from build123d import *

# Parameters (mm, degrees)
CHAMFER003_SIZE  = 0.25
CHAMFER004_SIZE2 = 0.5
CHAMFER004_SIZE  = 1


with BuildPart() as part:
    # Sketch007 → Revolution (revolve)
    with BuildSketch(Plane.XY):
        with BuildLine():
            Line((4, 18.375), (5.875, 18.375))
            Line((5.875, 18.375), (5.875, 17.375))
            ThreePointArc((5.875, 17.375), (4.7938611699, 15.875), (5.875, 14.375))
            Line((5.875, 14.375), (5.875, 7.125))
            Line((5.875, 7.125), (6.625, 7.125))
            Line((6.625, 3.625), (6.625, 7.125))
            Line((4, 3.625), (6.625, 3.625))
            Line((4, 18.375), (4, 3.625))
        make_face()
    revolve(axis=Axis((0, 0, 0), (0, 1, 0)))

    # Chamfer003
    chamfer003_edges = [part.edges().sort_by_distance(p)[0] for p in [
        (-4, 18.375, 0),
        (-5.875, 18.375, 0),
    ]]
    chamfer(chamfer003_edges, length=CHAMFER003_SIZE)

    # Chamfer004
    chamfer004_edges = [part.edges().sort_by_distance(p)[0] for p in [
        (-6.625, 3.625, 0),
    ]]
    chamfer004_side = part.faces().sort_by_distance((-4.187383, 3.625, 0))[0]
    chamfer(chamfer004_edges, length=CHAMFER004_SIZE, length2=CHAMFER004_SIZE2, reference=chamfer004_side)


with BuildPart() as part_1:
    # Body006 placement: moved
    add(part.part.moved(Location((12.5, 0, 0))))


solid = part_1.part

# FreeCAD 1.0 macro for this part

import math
import FreeCAD as App
import Part
import Sketcher

V = App.Vector
Q = App.Units.Quantity


def edges_at(feature, points):
    """Names of the edges that pass closest to the given points."""
    edges = feature.Shape.Edges
    near = lambda p: min(range(len(edges)), key=lambda i: edges[i].distToShape(Part.Vertex(*p))[0])
    return sorted({f"Edge{near(p) + 1}" for p in points})

doc = App.newDocument("Part")
body = doc.addObject("PartDesign::Body", "Body")

sketch1 = doc.addObject("Sketcher::SketchObject", "Sketch")
body.addObject(sketch1)
sketch1.AttachmentSupport = (doc.XY_Plane, [""])
sketch1.MapMode = "FlatFace"
sketch1.addGeometry(Part.LineSegment(V(5.9, 18.4, 0), V(4, 18.4, 0)), False)
sketch1.addGeometry(Part.LineSegment(V(4, 18.4, 0), V(4, 3.6, 0)), False)
sketch1.addGeometry(Part.LineSegment(V(4, 3.6, 0), V(6.6, 3.6, 0)), False)
sketch1.addGeometry(Part.LineSegment(V(6.6, 3.6, 0), V(6.6, 7.1, 0)), False)
sketch1.addGeometry(Part.LineSegment(V(6.6, 7.1, 0), V(5.9, 7.1, 0)), False)
sketch1.addGeometry(Part.LineSegment(V(5.9, 7.1, 0), V(5.9, 14.4, 0)), False)
sketch1.addGeometry(Part.ArcOfCircle(Part.Circle(V(6.4, 15.9, 0), V(0, 0, 1), 1.6), math.radians(108), math.radians(252)), False)
sketch1.addGeometry(Part.LineSegment(V(5.9, 17.4, 0), V(5.9, 18.4, 0)), False)
sketch1.addConstraint(Sketcher.Constraint("Coincident", 0, 2, 1, 1))
sketch1.addConstraint(Sketcher.Constraint("Coincident", 1, 2, 2, 1))
sketch1.addConstraint(Sketcher.Constraint("Coincident", 2, 2, 3, 1))
sketch1.addConstraint(Sketcher.Constraint("Coincident", 3, 2, 4, 1))
sketch1.addConstraint(Sketcher.Constraint("Coincident", 4, 2, 5, 1))
sketch1.addConstraint(Sketcher.Constraint("Coincident", 5, 2, 6, 2))
sketch1.addConstraint(Sketcher.Constraint("Coincident", 6, 1, 7, 1))
sketch1.addConstraint(Sketcher.Constraint("Coincident", 7, 2, 0, 1))
sketch1.addConstraint(Sketcher.Constraint("Horizontal", 0))
sketch1.addConstraint(Sketcher.Constraint("Vertical", 1))
sketch1.addConstraint(Sketcher.Constraint("Horizontal", 2))
sketch1.addConstraint(Sketcher.Constraint("Vertical", 3))
sketch1.addConstraint(Sketcher.Constraint("Horizontal", 4))
sketch1.addConstraint(Sketcher.Constraint("Vertical", 5))
sketch1.addConstraint(Sketcher.Constraint("Vertical", 7))
sketch1.addConstraint(Sketcher.Constraint("Vertical", 5, 2, 6, 1))
sketch1.addConstraint(Sketcher.Constraint("DistanceY", 7, 1, 7, 2, Q("1 mm")))
sketch1.addConstraint(Sketcher.Constraint("DistanceY", 3, 1, 3, 2, Q("3.5 mm")))
sketch1.addConstraint(Sketcher.Constraint("DistanceX", -1, 1, 0, 2, Q("4 mm")))
sketch1.addConstraint(Sketcher.Constraint("DistanceY", 5, 2, 0, 2, Q("4 mm")))
sketch1.addConstraint(Sketcher.Constraint("DistanceX", 4, 2, 4, 1, Q("0.75 mm")))
sketch1.addConstraint(Sketcher.Constraint("DistanceY", 1, 2, 1, 1, Q("14.75 mm")))
sketch1.addConstraint(Sketcher.Constraint("DistanceX", 4, 2, 6, 3, Q("0.5 mm")))
sketch1.addConstraint(Sketcher.Constraint("DistanceX", 0, 2, 0, 1, Q("1.875 mm")))
sketch1.addConstraint(Sketcher.Constraint("DistanceY", -1, 1, 6, 3, Q("15.875 mm")))
revolution = doc.addObject("PartDesign::Revolution", "Revolution")
body.addObject(revolution)
revolution.Profile = sketch1
revolution.ReferenceAxis = (sketch1, ["V_Axis"])
revolution.Angle = 360
doc.recompute()

chamfer = doc.addObject("PartDesign::Chamfer", "Chamfer")
body.addObject(chamfer)
chamfer.Base = (revolution, edges_at(revolution, [(-4, 18.375, 0), (-5.875, 18.375, 0)]))
chamfer.Size = 0.25
doc.recompute()

chamfer2 = doc.addObject("PartDesign::Chamfer", "Chamfer001")
body.addObject(chamfer2)
chamfer2.Base = (chamfer, edges_at(chamfer, [(-6.625, 3.625, 0)]))
chamfer2.ChamferType = "Two distances"
chamfer2.Size = 1
chamfer2.Size2 = 0.5
body2 = doc.addObject("PartDesign::Body", "Body001")
doc.recompute()

body.Placement = App.Placement(V(12.5, 0, 0), App.Rotation(V(0, 0, 1), 0))
boolean = doc.addObject("PartDesign::Boolean", "Boolean")
body2.addObject(boolean)
boolean.Type = "Fuse"
boolean.addObjects([body])

doc.recompute()
